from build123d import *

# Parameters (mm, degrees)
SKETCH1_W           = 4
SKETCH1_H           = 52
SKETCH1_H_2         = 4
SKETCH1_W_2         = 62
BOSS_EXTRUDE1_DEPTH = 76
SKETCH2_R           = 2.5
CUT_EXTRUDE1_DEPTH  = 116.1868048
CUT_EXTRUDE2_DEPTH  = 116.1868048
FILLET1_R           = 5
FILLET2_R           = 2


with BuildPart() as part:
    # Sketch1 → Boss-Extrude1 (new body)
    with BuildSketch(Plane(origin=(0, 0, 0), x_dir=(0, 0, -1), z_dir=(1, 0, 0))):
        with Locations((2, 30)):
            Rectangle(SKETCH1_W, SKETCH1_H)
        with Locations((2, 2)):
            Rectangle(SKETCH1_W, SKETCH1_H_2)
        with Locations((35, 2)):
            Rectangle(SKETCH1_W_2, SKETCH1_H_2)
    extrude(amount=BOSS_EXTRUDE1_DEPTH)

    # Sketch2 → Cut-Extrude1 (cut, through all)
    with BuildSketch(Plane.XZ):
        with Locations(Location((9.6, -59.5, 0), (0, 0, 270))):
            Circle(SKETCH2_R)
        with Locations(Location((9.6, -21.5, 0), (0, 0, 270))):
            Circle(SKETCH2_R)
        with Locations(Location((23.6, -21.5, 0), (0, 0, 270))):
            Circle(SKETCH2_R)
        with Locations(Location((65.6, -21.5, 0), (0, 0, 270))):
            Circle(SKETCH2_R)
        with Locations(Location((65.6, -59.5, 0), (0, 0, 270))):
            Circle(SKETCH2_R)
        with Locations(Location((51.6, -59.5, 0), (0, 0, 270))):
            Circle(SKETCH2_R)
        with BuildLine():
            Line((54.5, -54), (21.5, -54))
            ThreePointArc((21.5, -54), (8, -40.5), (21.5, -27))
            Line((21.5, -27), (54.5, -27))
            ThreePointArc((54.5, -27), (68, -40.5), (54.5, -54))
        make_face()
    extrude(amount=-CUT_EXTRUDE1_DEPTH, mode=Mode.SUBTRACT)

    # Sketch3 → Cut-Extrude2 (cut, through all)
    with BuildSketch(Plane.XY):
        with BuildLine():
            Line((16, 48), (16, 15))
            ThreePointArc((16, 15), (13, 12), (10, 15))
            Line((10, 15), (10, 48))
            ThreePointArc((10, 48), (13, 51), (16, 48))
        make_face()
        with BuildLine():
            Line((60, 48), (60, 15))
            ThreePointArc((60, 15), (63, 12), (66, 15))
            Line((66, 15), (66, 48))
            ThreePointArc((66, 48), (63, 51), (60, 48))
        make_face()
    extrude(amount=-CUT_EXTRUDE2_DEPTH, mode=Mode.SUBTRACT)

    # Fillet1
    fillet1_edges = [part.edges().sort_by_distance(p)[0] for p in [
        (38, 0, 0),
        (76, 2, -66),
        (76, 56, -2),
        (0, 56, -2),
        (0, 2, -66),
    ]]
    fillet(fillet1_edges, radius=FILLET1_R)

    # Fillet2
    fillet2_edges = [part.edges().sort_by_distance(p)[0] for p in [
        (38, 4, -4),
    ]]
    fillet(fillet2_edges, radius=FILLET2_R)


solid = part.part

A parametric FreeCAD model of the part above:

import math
import FreeCAD as App
import Part
import Sketcher

V = App.Vector
Q = App.Units.Quantity


def edges_at(feature, points):
    """Names of the edges that pass closest to the given points."""
    edges = feature.Shape.Edges
    near = lambda p: min(range(len(edges)), key=lambda i: edges[i].distToShape(Part.Vertex(*p))[0])
    return sorted({f"Edge{near(p) + 1}" for p in points})


def add_polygon(sketch, points):
    """Adds a closed chain of lines whose ends are joined by coincident constraints."""
    first, n = sketch.GeometryCount, len(points)
    for a, b in zip(points, points[1:] + points[:1]):
        sketch.addGeometry(Part.LineSegment(App.Vector(*a, 0), App.Vector(*b, 0)), False)
    for i in range(n):
        sketch.addConstraint(Sketcher.Constraint("Coincident", first + i, 2, first + (i + 1) % n, 1))

doc = App.newDocument("Part")
body = doc.addObject("PartDesign::Body", "Body")

# Sketch on YZ plane
sketch1 = doc.addObject("Sketcher::SketchObject", "Sketch")
body.addObject(sketch1)
sketch1.AttachmentSupport = (doc.YZ_Plane, [""])
sketch1.MapMode = "FlatFace"
add_polygon(sketch1, [(56, 0), (0, 0), (0, -66), (4, -66), (4, -4), (56, -4)])  # lines 0-5
sketch1.addConstraint([
    Sketcher.Constraint("Horizontal", 0),
    Sketcher.Constraint("Vertical", 1),
    Sketcher.Constraint("Horizontal", 2),
    Sketcher.Constraint("Vertical", 3),
    Sketcher.Constraint("Horizontal", 4),
    Sketcher.Constraint("Vertical", 5),
    Sketcher.Constraint("Coincident", 0, 2, -1, 1),
    Sketcher.Constraint("Equal", 2, 5),
    Sketcher.Constraint("DistanceX", 0, 2, 0, 1, Q("56 mm")),
    Sketcher.Constraint("DistanceX", 2, 1, 2, 2, Q("4 mm")),
    Sketcher.Constraint("DistanceY", 1, 2, 1, 1, Q("66 mm")),
])
pad1 = doc.addObject("PartDesign::Pad", "Pad")
body.addObject(pad1)
pad1.Profile = sketch1
pad1.Length = 76

# Sketch on XZ plane
sketch2 = doc.addObject("Sketcher::SketchObject", "Sketch001")
body.addObject(sketch2)
sketch2.AttachmentSupport = (doc.XZ_Plane, [""])
sketch2.MapMode = "FlatFace"
sketch2.addGeometry([
    Part.Circle(V(9.6, -59.5, 0), V(0, 0, 1), 2.5),  # 0
    Part.Circle(V(9.6, -21.5, 0), V(0, 0, 1), 2.5),  # 1
    Part.Circle(V(23.6, -21.5, 0), V(0, 0, 1), 2.5),  # 2
    Part.Circle(V(65.6, -21.5, 0), V(0, 0, 1), 2.5),  # 3
    Part.Circle(V(65.6, -59.5, 0), V(0, 0, 1), 2.5),  # 4
    Part.Circle(V(51.6, -59.5, 0), V(0, 0, 1), 2.5),  # 5
    Part.LineSegment(V(21.5, -54, 0), V(54.5, -54, 0)),  # 6
    Part.ArcOfCircle(Part.Circle(V(54.5, -40.5, 0), V(0, 0, 1), 13.5), math.radians(-90), math.radians(90)),  # 7
    Part.LineSegment(V(54.5, -27, 0), V(21.5, -27, 0)),  # 8
    Part.ArcOfCircle(Part.Circle(V(21.5, -40.5, 0), V(0, 0, 1), 13.5), math.radians(90), math.radians(270)),  # 9
], False)
sketch2.addConstraint([
    Sketcher.Constraint("Tangent", 6, 2, 7, 1),
    Sketcher.Constraint("Tangent", 7, 2, 8, 1),
    Sketcher.Constraint("Tangent", 8, 2, 9, 1),
    Sketcher.Constraint("Tangent", 9, 2, 6, 1),
    Sketcher.Constraint("Horizontal", 6),
    Sketcher.Constraint("Horizontal", 8),
    Sketcher.Constraint("Equal", 0, 1),
    Sketcher.Constraint("Equal", 1, 2),
    Sketcher.Constraint("Equal", 2, 3),
    Sketcher.Constraint("Equal", 3, 4),
    Sketcher.Constraint("Equal", 4, 5),
    Sketcher.Constraint("Horizontal", 1, 3, 2, 3),
    Sketcher.Constraint("Horizontal", 2, 3, 3, 3),
    Sketcher.Constraint("Horizontal", 0, 3, 4, 3),
    Sketcher.Constraint("Horizontal", 4, 3, 5, 3),
    Sketcher.Constraint("Vertical", 0, 3, 1, 3),
    Sketcher.Constraint("Vertical", 3, 3, 4, 3),
    Sketcher.Constraint("Diameter", 0, Q("5 mm")),
    Sketcher.Constraint("Radius", 7, Q("13.5 mm")),
    Sketcher.Constraint("DistanceX", 6, 1, 6, 2, Q("33 mm")),
    Sketcher.Constraint("DistanceY", 6, 2, -1, 1, Q("54 mm")),
    Sketcher.Constraint("DistanceY", 0, 3, 1, 3, Q("38 mm")),
    Sketcher.Constraint("DistanceX", 1, 3, 2, 3, Q("14 mm")),
    Sketcher.Constraint("DistanceX", 2, 3, 3, 3, Q("42 mm")),
    Sketcher.Constraint("DistanceX", 5, 3, 4, 3, Q("14 mm")),
    Sketcher.Constraint("DistanceY", 5, 3, 7, 3, Q("19 mm")),
    Sketcher.Constraint("DistanceX", -1, 1, 0, 3, Q("9.6 mm")),
    Sketcher.Constraint("DistanceX", -1, 1, 7, 3, Q("54.5 mm")),
])
pocket1 = doc.addObject("PartDesign::Pocket", "Pocket")
body.addObject(pocket1)
pocket1.Profile = sketch2
pocket1.Type = "ThroughAll"

# Sketch on XY plane
sketch3 = doc.addObject("Sketcher::SketchObject", "Sketch002")
body.addObject(sketch3)
sketch3.AttachmentSupport = (doc.XY_Plane, [""])
sketch3.MapMode = "FlatFace"
sketch3.addGeometry([
    Part.LineSegment(V(16, 15, 0), V(16, 48, 0)),  # 0
    Part.ArcOfCircle(Part.Circle(V(13, 48, 0), V(0, 0, 1), 3), math.radians(0), math.radians(180)),  # 1
    Part.LineSegment(V(10, 48, 0), V(10, 15, 0)),  # 2
    Part.ArcOfCircle(Part.Circle(V(13, 15, 0), V(0, 0, 1), 3), math.radians(180), math.radians(360)),  # 3
    Part.LineSegment(V(60, 48, 0), V(60, 15, 0)),  # 4
    Part.ArcOfCircle(Part.Circle(V(63, 15, 0), V(0, 0, 1), 3), math.radians(180), math.radians(360)),  # 5
    Part.LineSegment(V(66, 15, 0), V(66, 48, 0)),  # 6
    Part.ArcOfCircle(Part.Circle(V(63, 48, 0), V(0, 0, 1), 3), math.radians(0), math.radians(180)),  # 7
], False)
sketch3.addConstraint([
    Sketcher.Constraint("Tangent", 0, 2, 1, 1),
    Sketcher.Constraint("Tangent", 1, 2, 2, 1),
    Sketcher.Constraint("Tangent", 2, 2, 3, 1),
    Sketcher.Constraint("Tangent", 3, 2, 0, 1),
    Sketcher.Constraint("Tangent", 4, 2, 5, 1),
    Sketcher.Constraint("Tangent", 5, 2, 6, 1),
    Sketcher.Constraint("Tangent", 6, 2, 7, 1),
    Sketcher.Constraint("Tangent", 7, 2, 4, 1),
    Sketcher.Constraint("Vertical", 0),
    Sketcher.Constraint("Vertical", 2),
    Sketcher.Constraint("Vertical", 4),
    Sketcher.Constraint("Vertical", 6),
    Sketcher.Constraint("Equal", 3, 5),
    Sketcher.Constraint("Horizontal", 3, 3, 5, 3),
    Sketcher.Constraint("Horizontal", 1, 3, 7, 3),
    Sketcher.Constraint("Radius", 1, Q("3 mm")),
    Sketcher.Constraint("DistanceY", 0, 1, 0, 2, Q("33 mm")),
    Sketcher.Constraint("DistanceX", -1, 1, 1, 3, Q("13 mm")),
    Sketcher.Constraint("DistanceY", -1, 1, 1, 3, Q("48 mm")),
    Sketcher.Constraint("DistanceX", -1, 1, 5, 3, Q("63 mm")),
])
pocket2 = doc.addObject("PartDesign::Pocket", "Pocket001")
body.addObject(pocket2)
pocket2.Profile = sketch3
pocket2.Type = "ThroughAll"
doc.recompute()

fillet = doc.addObject("PartDesign::Fillet", "Fillet")
body.addObject(fillet)
fillet.Base = (pocket2, edges_at(pocket2, [
    (38, 0, 0),
    (76, 2, -66),
    (76, 56, -2),
    (0, 56, -2),
    (0, 2, -66),
]))
fillet.Radius = 5
doc.recompute()

fillet2 = doc.addObject("PartDesign::Fillet", "Fillet001")
body.addObject(fillet2)
fillet2.Base = (fillet, edges_at(fillet, [(38, 4, -4)]))
fillet2.Radius = 2

doc.recompute()
